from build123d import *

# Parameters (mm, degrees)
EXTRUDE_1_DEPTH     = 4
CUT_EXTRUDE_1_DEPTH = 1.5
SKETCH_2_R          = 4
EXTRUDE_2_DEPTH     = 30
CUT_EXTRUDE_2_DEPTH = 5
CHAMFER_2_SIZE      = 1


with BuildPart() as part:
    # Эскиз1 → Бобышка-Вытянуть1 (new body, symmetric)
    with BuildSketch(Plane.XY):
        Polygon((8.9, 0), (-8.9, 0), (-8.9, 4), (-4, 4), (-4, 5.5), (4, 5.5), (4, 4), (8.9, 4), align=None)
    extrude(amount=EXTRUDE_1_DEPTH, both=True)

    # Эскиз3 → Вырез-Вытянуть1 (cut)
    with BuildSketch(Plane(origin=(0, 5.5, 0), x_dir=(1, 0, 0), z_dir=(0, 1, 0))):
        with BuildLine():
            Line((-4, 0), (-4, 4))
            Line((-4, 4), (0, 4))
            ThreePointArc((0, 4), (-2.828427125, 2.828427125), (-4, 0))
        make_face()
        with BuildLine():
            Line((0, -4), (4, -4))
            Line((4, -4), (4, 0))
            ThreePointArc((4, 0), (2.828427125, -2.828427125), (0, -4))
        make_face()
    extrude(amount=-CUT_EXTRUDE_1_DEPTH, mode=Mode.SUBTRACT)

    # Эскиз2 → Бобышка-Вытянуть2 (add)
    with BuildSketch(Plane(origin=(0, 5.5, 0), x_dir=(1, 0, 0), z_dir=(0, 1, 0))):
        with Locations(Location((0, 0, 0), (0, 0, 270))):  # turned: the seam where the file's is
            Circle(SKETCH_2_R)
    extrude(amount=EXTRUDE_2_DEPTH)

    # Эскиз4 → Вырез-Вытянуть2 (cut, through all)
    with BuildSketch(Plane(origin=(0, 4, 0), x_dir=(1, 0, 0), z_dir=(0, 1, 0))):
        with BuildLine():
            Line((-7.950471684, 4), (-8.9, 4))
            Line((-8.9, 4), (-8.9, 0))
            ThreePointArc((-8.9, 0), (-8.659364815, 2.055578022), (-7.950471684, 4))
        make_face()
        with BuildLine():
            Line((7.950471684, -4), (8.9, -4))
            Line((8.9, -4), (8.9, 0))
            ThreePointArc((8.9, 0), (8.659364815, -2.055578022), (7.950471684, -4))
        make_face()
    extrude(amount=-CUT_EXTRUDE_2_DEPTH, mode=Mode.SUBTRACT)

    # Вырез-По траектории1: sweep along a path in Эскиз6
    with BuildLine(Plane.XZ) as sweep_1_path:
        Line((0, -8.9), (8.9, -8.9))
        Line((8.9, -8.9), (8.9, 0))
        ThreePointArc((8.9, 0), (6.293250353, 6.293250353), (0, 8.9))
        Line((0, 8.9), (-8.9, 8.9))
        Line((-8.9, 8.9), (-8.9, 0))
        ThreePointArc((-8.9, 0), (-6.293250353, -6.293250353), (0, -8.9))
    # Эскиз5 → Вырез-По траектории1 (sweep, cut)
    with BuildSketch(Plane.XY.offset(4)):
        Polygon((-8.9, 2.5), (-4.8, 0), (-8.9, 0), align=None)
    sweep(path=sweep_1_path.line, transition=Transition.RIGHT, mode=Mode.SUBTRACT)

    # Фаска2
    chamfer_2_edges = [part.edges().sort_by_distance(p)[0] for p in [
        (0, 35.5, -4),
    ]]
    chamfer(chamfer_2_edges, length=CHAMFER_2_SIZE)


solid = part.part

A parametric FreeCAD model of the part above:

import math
import FreeCAD as App
import Part
import Sketcher
Q = App.Units.Quantity


def edges_at(feature, points):
    """Names of the edges that pass closest to the given points."""
    edges = feature.Shape.Edges
    near = lambda p: min(range(len(edges)), key=lambda i: edges[i].distToShape(Part.Vertex(*p))[0])
    return sorted({f"Edge{near(p) + 1}" for p in points})

doc = App.newDocument("Part")
params = doc.addObject("Spreadsheet::Sheet", "Params")
for row, (alias, value) in enumerate([
    ("sketch1_width", "8 mm"),
    ("sketch1_height", "4 mm"),
    ("sketch1_width2", "17.8 mm"),
    ("sketch1_height2", "1.5 mm"),
    ("pad1_length", "8 mm"),
    ("sketch2_radius", "4 mm"),
    ("pocket1_length", "1.5 mm"),
    ("sketch3_diameter", "8 mm"),
    ("pad2_length", "30 mm"),
    ("sketch4_radius", "8.9 mm"),
    ("sketch4_height", "4 mm"),
    ("sketch5_width", "4.1 mm"),
    ("sketch5_height", "2.5 mm"),
    ("sketch6_radius", "8.9 mm"),
    ("chamfer_size", "1 mm"),
], start=1):
    params.set(f"A{row}", alias)
    params.set(f"B{row}", "=" + value)
    params.setAlias(f"B{row}", alias)

body = doc.addObject("PartDesign::Body", "Body")

sketch1 = body.newObject("Sketcher::SketchObject", "Sketch")
sketch1.AttachmentSupport = (doc.getObject("XY_Plane"), [""])
sketch1.MapMode = "FlatFace"
sketch1.addGeometry(Part.LineSegment(App.Vector(-8.9, 0, 0), App.Vector(8.9, 0, 0)), False)
sketch1.addGeometry(Part.LineSegment(App.Vector(8.9, 0, 0), App.Vector(8.9, 4, 0)), False)
sketch1.addGeometry(Part.LineSegment(App.Vector(8.9, 4, 0), App.Vector(4, 4, 0)), False)
sketch1.addGeometry(Part.LineSegment(App.Vector(4, 4, 0), App.Vector(4, 5.5, 0)), False)
sketch1.addGeometry(Part.LineSegment(App.Vector(4, 5.5, 0), App.Vector(-4, 5.5, 0)), False)
sketch1.addGeometry(Part.LineSegment(App.Vector(-4, 5.5, 0), App.Vector(-4, 4, 0)), False)
sketch1.addGeometry(Part.LineSegment(App.Vector(-4, 4, 0), App.Vector(-8.9, 4, 0)), False)
sketch1.addGeometry(Part.LineSegment(App.Vector(-8.9, 4, 0), App.Vector(-8.9, 0, 0)), False)
sketch1.addConstraint(Sketcher.Constraint("Coincident", 0, 2, 1, 1))
sketch1.addConstraint(Sketcher.Constraint("Coincident", 1, 2, 2, 1))
sketch1.addConstraint(Sketcher.Constraint("Coincident", 2, 2, 3, 1))
sketch1.addConstraint(Sketcher.Constraint("Coincident", 3, 2, 4, 1))
sketch1.addConstraint(Sketcher.Constraint("Coincident", 4, 2, 5, 1))
sketch1.addConstraint(Sketcher.Constraint("Coincident", 5, 2, 6, 1))
sketch1.addConstraint(Sketcher.Constraint("Coincident", 6, 2, 7, 1))
sketch1.addConstraint(Sketcher.Constraint("Coincident", 7, 2, 0, 1))
sketch1.addConstraint(Sketcher.Constraint("Horizontal", 0))
sketch1.addConstraint(Sketcher.Constraint("Vertical", 1))
sketch1.addConstraint(Sketcher.Constraint("Horizontal", 2))
sketch1.addConstraint(Sketcher.Constraint("Vertical", 3))
sketch1.addConstraint(Sketcher.Constraint("Horizontal", 4))
sketch1.addConstraint(Sketcher.Constraint("Vertical", 5))
sketch1.addConstraint(Sketcher.Constraint("Horizontal", 6))
sketch1.addConstraint(Sketcher.Constraint("Vertical", 7))
sketch1.addConstraint(Sketcher.Constraint("Symmetric", 0, 2, 7, 2, -1, 1))
sketch1.addConstraint(Sketcher.Constraint("Symmetric", 2, 2, 5, 2, -2))
sketch1.addConstraint(Sketcher.Constraint("DistanceX", 4, 2, 4, 1, Q("8 mm")))
sketch1.addConstraint(Sketcher.Constraint("DistanceY", 1, 1, 1, 2, Q("4 mm")))
sketch1.addConstraint(Sketcher.Constraint("DistanceX", 0, 1, 0, 2, Q("17.8 mm")))
sketch1.addConstraint(Sketcher.Constraint("DistanceY", 3, 1, 3, 2, Q("1.5 mm")))
sketch1.setExpression("Constraints[18]", "Params.sketch1_width")
sketch1.setExpression("Constraints[19]", "Params.sketch1_height")
sketch1.setExpression("Constraints[20]", "Params.sketch1_width2")
sketch1.setExpression("Constraints[21]", "Params.sketch1_height2")
pad1 = body.newObject("PartDesign::Pad", "Pad")
pad1.Profile = sketch1
pad1.setExpression("Length", "Params.pad1_length")
pad1.Midplane = True

sketch2 = body.newObject("Sketcher::SketchObject", "Sketch001")
sketch2.AttachmentSupport = (doc.getObject("XZ_Plane"), [""])
sketch2.MapMode = "FlatFace"
sketch2.AttachmentOffset = App.Placement(App.Vector(0, 0, -5.5), App.Rotation())
sketch2.addGeometry(Part.LineSegment(App.Vector(-4, -4, 0), App.Vector(-4, 0, 0)), False)
sketch2.addGeometry(Part.ArcOfCircle(Part.Circle(App.Vector(0, 0, 0), App.Vector(0, 0, 1), 4), math.radians(180), math.radians(270)), False)
sketch2.addGeometry(Part.LineSegment(App.Vector(0, -4, 0), App.Vector(-4, -4, 0)), False)
sketch2.addGeometry(Part.LineSegment(App.Vector(0, 4, 0), App.Vector(4, 4, 0)), False)
sketch2.addGeometry(Part.LineSegment(App.Vector(4, 4, 0), App.Vector(4, 0, 0)), False)
sketch2.addGeometry(Part.ArcOfCircle(Part.Circle(App.Vector(0, 0, 0), App.Vector(0, 0, 1), 4), math.radians(0), math.radians(90)), False)
sketch2.addConstraint(Sketcher.Constraint("Tangent", 0, 2, 1, 1))
sketch2.addConstraint(Sketcher.Constraint("Tangent", 1, 2, 2, 1))
sketch2.addConstraint(Sketcher.Constraint("Coincident", 2, 2, 0, 1))
sketch2.addConstraint(Sketcher.Constraint("Coincident", 3, 2, 4, 1))
sketch2.addConstraint(Sketcher.Constraint("Tangent", 4, 2, 5, 1))
sketch2.addConstraint(Sketcher.Constraint("Tangent", 5, 2, 3, 1))
sketch2.addConstraint(Sketcher.Constraint("Vertical", 0))
sketch2.addConstraint(Sketcher.Constraint("Horizontal", 2))
sketch2.addConstraint(Sketcher.Constraint("Horizontal", 3))
sketch2.addConstraint(Sketcher.Constraint("Vertical", 4))
sketch2.addConstraint(Sketcher.Constraint("Coincident", 1, 3, -1, 1))
sketch2.addConstraint(Sketcher.Constraint("Coincident", 5, 3, -1, 1))
sketch2.addConstraint(Sketcher.Constraint("Equal", 1, 5))
sketch2.addConstraint(Sketcher.Constraint("Radius", 1, Q("4 mm")))
sketch2.setExpression("Constraints[13]", "Params.sketch2_radius")
pocket1 = body.newObject("PartDesign::Pocket", "Pocket")
pocket1.Profile = sketch2
pocket1.setExpression("Length", "Params.pocket1_length")
pocket1.Reversed = True

sketch3 = body.newObject("Sketcher::SketchObject", "Sketch002")
sketch3.AttachmentSupport = (doc.getObject("XZ_Plane"), [""])
sketch3.MapMode = "FlatFace"
sketch3.AttachmentOffset = App.Placement(App.Vector(0, 0, -5.5), App.Rotation())
sketch3.addGeometry(Part.Circle(App.Vector(0, 0, 0), App.Vector(0, 0, 1), 4), False)
sketch3.addConstraint(Sketcher.Constraint("Coincident", 0, 3, -1, 1))
sketch3.addConstraint(Sketcher.Constraint("Diameter", 0, Q("8 mm")))
sketch3.setExpression("Constraints[1]", "Params.sketch3_diameter")
pad2 = body.newObject("PartDesign::Pad", "Pad001")
pad2.Profile = sketch3
pad2.setExpression("Length", "Params.pad2_length")
pad2.Reversed = True

sketch4 = body.newObject("Sketcher::SketchObject", "Sketch003")
sketch4.AttachmentSupport = (doc.getObject("XZ_Plane"), [""])
sketch4.MapMode = "FlatFace"
sketch4.AttachmentOffset = App.Placement(App.Vector(0, 0, -4), App.Rotation())
sketch4.addGeometry(Part.LineSegment(App.Vector(-7.950472, -4, 0), App.Vector(-8.9, -4, 0)), False)
sketch4.addGeometry(Part.LineSegment(App.Vector(-8.9, -4, 0), App.Vector(-8.9, 0, 0)), False)
sketch4.addGeometry(Part.ArcOfCircle(Part.Circle(App.Vector(0, 0, 0), App.Vector(0, 0, 1), 8.9), math.radians(180), math.radians(206.707645)), False)
sketch4.addGeometry(Part.LineSegment(App.Vector(7.950472, 4, 0), App.Vector(8.9, 4, 0)), False)
sketch4.addGeometry(Part.LineSegment(App.Vector(8.9, 4, 0), App.Vector(8.9, 0, 0)), False)
sketch4.addGeometry(Part.ArcOfCircle(Part.Circle(App.Vector(0, 0, 0), App.Vector(0, 0, 1), 8.9), math.radians(0), math.radians(26.707645)), False)
sketch4.addConstraint(Sketcher.Constraint("Coincident", 0, 2, 1, 1))
sketch4.addConstraint(Sketcher.Constraint("Tangent", 1, 2, 2, 1))
sketch4.addConstraint(Sketcher.Constraint("Coincident", 2, 2, 0, 1))
sketch4.addConstraint(Sketcher.Constraint("Coincident", 3, 2, 4, 1))
sketch4.addConstraint(Sketcher.Constraint("Tangent", 4, 2, 5, 1))
sketch4.addConstraint(Sketcher.Constraint("Coincident", 5, 2, 3, 1))
sketch4.addConstraint(Sketcher.Constraint("Horizontal", 0))
sketch4.addConstraint(Sketcher.Constraint("Vertical", 1))
sketch4.addConstraint(Sketcher.Constraint("Horizontal", 3))
sketch4.addConstraint(Sketcher.Constraint("Vertical", 4))
sketch4.addConstraint(Sketcher.Constraint("Coincident", 2, 3, -1, 1))
sketch4.addConstraint(Sketcher.Constraint("Coincident", 5, 3, -1, 1))
sketch4.addConstraint(Sketcher.Constraint("Equal", 2, 5))
sketch4.addConstraint(Sketcher.Constraint("Equal", 0, 3))
sketch4.addConstraint(Sketcher.Constraint("Radius", 2, Q("8.9 mm")))
sketch4.addConstraint(Sketcher.Constraint("DistanceY", 1, 1, 1, 2, Q("4 mm")))
sketch4.setExpression("Constraints[14]", "Params.sketch4_radius")
sketch4.setExpression("Constraints[15]", "Params.sketch4_height")
pocket2 = body.newObject("PartDesign::Pocket", "Pocket001")
pocket2.Profile = sketch4
pocket2.Type = "ThroughAll"
pocket2.Reversed = True

sketch5 = body.newObject("Sketcher::SketchObject", "Sketch004")
sketch5.AttachmentSupport = (doc.getObject("XY_Plane"), [""])
sketch5.MapMode = "FlatFace"
sketch5.AttachmentOffset = App.Placement(App.Vector(0, 0, 4), App.Rotation())
sketch5.addGeometry(Part.LineSegment(App.Vector(-4.8, 0, 0), App.Vector(-8.9, 2.5, 0)), False)
sketch5.addGeometry(Part.LineSegment(App.Vector(-8.9, 2.5, 0), App.Vector(-8.9, 0, 0)), False)
sketch5.addGeometry(Part.LineSegment(App.Vector(-8.9, 0, 0), App.Vector(-4.8, 0, 0)), False)
sketch5.addConstraint(Sketcher.Constraint("Coincident", 0, 2, 1, 1))
sketch5.addConstraint(Sketcher.Constraint("Coincident", 1, 2, 2, 1))
sketch5.addConstraint(Sketcher.Constraint("Coincident", 2, 2, 0, 1))
sketch5.addConstraint(Sketcher.Constraint("Vertical", 1))
sketch5.addConstraint(Sketcher.Constraint("Horizontal", 2))
sketch5.addConstraint(Sketcher.Constraint("PointOnObject", 1, 2, -1))
sketch5.addConstraint(Sketcher.Constraint("DistanceX", 2, 1, 2, 2, Q("4.1 mm")))
sketch5.addConstraint(Sketcher.Constraint("DistanceY", 1, 2, 1, 1, Q("2.5 mm")))
sketch5.addConstraint(Sketcher.Constraint("DistanceX", 0, 2, -1, 1, Q("8.9 mm")))
sketch5.setExpression("Constraints[6]", "Params.sketch5_width")
sketch5.setExpression("Constraints[7]", "Params.sketch5_height")

sketch6 = body.newObject("Sketcher::SketchObject", "Sketch005")
sketch6.AttachmentSupport = (doc.getObject("XZ_Plane"), [""])
sketch6.MapMode = "FlatFace"
sketch6.addGeometry(Part.LineSegment(App.Vector(0, -8.9, 0), App.Vector(8.9, -8.9, 0)), False)
sketch6.addGeometry(Part.LineSegment(App.Vector(8.9, -8.9, 0), App.Vector(8.9, 0, 0)), False)
sketch6.addGeometry(Part.ArcOfCircle(Part.Circle(App.Vector(0, 0, 0), App.Vector(0, 0, 1), 8.9), math.radians(0), math.radians(90)), False)
sketch6.addGeometry(Part.LineSegment(App.Vector(0, 8.9, 0), App.Vector(-8.9, 8.9, 0)), False)
sketch6.addGeometry(Part.LineSegment(App.Vector(-8.9, 8.9, 0), App.Vector(-8.9, 0, 0)), False)
sketch6.addGeometry(Part.ArcOfCircle(Part.Circle(App.Vector(0, 0, 0), App.Vector(0, 0, 1), 8.9), math.radians(180), math.radians(270)), False)
sketch6.addConstraint(Sketcher.Constraint("Coincident", 0, 2, 1, 1))
sketch6.addConstraint(Sketcher.Constraint("Tangent", 1, 2, 2, 1))
sketch6.addConstraint(Sketcher.Constraint("Tangent", 2, 2, 3, 1))
sketch6.addConstraint(Sketcher.Constraint("Coincident", 3, 2, 4, 1))
sketch6.addConstraint(Sketcher.Constraint("Tangent", 4, 2, 5, 1))
sketch6.addConstraint(Sketcher.Constraint("Tangent", 5, 2, 0, 1))
sketch6.addConstraint(Sketcher.Constraint("Horizontal", 0))
sketch6.addConstraint(Sketcher.Constraint("Vertical", 1))
sketch6.addConstraint(Sketcher.Constraint("Horizontal", 3))
sketch6.addConstraint(Sketcher.Constraint("Vertical", 4))
sketch6.addConstraint(Sketcher.Constraint("Coincident", 2, 3, -1, 1))
sketch6.addConstraint(Sketcher.Constraint("Coincident", 5, 3, -1, 1))
sketch6.addConstraint(Sketcher.Constraint("Equal", 2, 5))
sketch6.addConstraint(Sketcher.Constraint("Radius", 2, Q("8.9 mm")))
sketch6.setExpression("Constraints[13]", "Params.sketch6_radius")
doc.recompute()

subtractivepipe = body.newObject("PartDesign::SubtractivePipe", "SubtractivePipe")
subtractivepipe.Profile = sketch5
subtractivepipe.Spine = (sketch6, ["Edge1", "Edge2", "Edge3", "Edge4", "Edge5", "Edge6"])
subtractivepipe.Transition = "Right corner"
doc.recompute()

chamfer = body.newObject("PartDesign::Chamfer", "Chamfer")
chamfer.Base = (subtractivepipe, edges_at(subtractivepipe, [(0, 35.5, -4)]))
chamfer.setExpression("Size", "Params.chamfer_size")

doc.recompute()
